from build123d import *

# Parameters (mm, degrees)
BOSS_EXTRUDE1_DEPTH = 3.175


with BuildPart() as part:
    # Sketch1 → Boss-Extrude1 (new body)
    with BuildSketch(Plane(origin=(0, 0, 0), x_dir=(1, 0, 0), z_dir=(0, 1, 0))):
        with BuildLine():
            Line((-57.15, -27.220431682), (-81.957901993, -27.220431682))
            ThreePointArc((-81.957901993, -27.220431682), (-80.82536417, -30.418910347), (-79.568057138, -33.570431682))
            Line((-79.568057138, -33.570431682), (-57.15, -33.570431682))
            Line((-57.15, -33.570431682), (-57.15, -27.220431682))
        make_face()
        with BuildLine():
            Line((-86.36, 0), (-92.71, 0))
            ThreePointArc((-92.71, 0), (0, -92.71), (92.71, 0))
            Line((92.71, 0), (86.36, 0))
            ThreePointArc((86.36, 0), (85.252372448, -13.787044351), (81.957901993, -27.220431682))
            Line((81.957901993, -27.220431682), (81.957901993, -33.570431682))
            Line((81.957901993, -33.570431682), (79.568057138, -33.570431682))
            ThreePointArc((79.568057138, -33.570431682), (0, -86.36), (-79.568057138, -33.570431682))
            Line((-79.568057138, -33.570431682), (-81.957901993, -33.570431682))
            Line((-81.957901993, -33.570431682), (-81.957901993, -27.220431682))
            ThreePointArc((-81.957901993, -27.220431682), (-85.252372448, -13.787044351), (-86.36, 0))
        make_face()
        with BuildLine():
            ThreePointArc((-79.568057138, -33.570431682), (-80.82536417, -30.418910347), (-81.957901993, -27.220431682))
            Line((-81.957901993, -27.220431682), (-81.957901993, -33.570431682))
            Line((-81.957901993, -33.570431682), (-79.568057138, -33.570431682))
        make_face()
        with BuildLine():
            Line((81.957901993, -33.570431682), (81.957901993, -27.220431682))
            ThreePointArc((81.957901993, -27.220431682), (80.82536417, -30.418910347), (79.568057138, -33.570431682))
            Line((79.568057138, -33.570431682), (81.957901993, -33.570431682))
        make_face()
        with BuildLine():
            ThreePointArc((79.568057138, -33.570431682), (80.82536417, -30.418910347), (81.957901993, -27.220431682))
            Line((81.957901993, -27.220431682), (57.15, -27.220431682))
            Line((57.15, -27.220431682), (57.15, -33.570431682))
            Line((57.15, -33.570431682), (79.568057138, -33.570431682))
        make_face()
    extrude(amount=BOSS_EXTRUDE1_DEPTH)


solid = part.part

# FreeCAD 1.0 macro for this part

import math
import FreeCAD as App
import Part
import Sketcher
Q = App.Units.Quantity

doc = App.newDocument("Part")
body = doc.addObject("PartDesign::Body", "Body")

# Sketch on XZ plane
sketch1 = doc.addObject("Sketcher::SketchObject", "Sketch")
body.addObject(sketch1)
sketch1.AttachmentSupport = (doc.XZ_Plane, [""])
sketch1.MapMode = "FlatFace"
sketch1.addGeometry(Part.LineSegment(App.Vector(-57, 27, 0), App.Vector(-82, 27, 0)), False)
sketch1.addGeometry(Part.ArcOfCircle(Part.Circle(App.Vector(0, 0, 0), App.Vector(0, 0, 1), 86), math.radians(161.63), math.radians(180)), False)
sketch1.addGeometry(Part.LineSegment(App.Vector(-86, 0, 0), App.Vector(-93, 0, 0)), False)
sketch1.addGeometry(Part.ArcOfCircle(Part.Circle(App.Vector(0, 0, 0), App.Vector(0, 0, 1), 93), math.radians(0), math.radians(180)), False)
sketch1.addGeometry(Part.LineSegment(App.Vector(93, 0, 0), App.Vector(86, 0, 0)), False)
sketch1.addGeometry(Part.ArcOfCircle(Part.Circle(App.Vector(0, 0, 0), App.Vector(0, 0, 1), 86), math.radians(0), math.radians(18.37)), False)
sketch1.addGeometry(Part.LineSegment(App.Vector(82, 27, 0), App.Vector(57, 27, 0)), False)
sketch1.addGeometry(Part.LineSegment(App.Vector(57, 27, 0), App.Vector(57, 34, 0)), False)
sketch1.addGeometry(Part.LineSegment(App.Vector(57, 34, 0), App.Vector(80, 34, 0)), False)
sketch1.addGeometry(Part.ArcOfCircle(Part.Circle(App.Vector(0, 0, 0), App.Vector(0, 0, 1), 86), math.radians(23), math.radians(157)), False)
sketch1.addGeometry(Part.LineSegment(App.Vector(-80, 34, 0), App.Vector(-57, 34, 0)), False)
sketch1.addGeometry(Part.LineSegment(App.Vector(-57, 34, 0), App.Vector(-57, 27, 0)), False)
sketch1.addConstraint(Sketcher.Constraint("Coincident", 0, 2, 1, 1))
sketch1.addConstraint(Sketcher.Constraint("Coincident", 1, 2, 2, 1))
sketch1.addConstraint(Sketcher.Constraint("Coincident", 2, 2, 3, 2))
sketch1.addConstraint(Sketcher.Constraint("Coincident", 3, 1, 4, 1))
sketch1.addConstraint(Sketcher.Constraint("Coincident", 4, 2, 5, 1))
sketch1.addConstraint(Sketcher.Constraint("Coincident", 5, 2, 6, 1))
sketch1.addConstraint(Sketcher.Constraint("Coincident", 6, 2, 7, 1))
sketch1.addConstraint(Sketcher.Constraint("Coincident", 7, 2, 8, 1))
sketch1.addConstraint(Sketcher.Constraint("Coincident", 8, 2, 9, 1))
sketch1.addConstraint(Sketcher.Constraint("Coincident", 9, 2, 10, 1))
sketch1.addConstraint(Sketcher.Constraint("Coincident", 10, 2, 11, 1))
sketch1.addConstraint(Sketcher.Constraint("Coincident", 11, 2, 0, 1))
sketch1.addConstraint(Sketcher.Constraint("Horizontal", 0))
sketch1.addConstraint(Sketcher.Constraint("Horizontal", 2))
sketch1.addConstraint(Sketcher.Constraint("Horizontal", 4))
sketch1.addConstraint(Sketcher.Constraint("Horizontal", 6))
sketch1.addConstraint(Sketcher.Constraint("Vertical", 7))
sketch1.addConstraint(Sketcher.Constraint("Horizontal", 8))
sketch1.addConstraint(Sketcher.Constraint("Horizontal", 10))
sketch1.addConstraint(Sketcher.Constraint("Vertical", 11))
sketch1.addConstraint(Sketcher.Constraint("Coincident", 1, 3, -1, 1))
sketch1.addConstraint(Sketcher.Constraint("Coincident", 3, 3, -1, 1))
sketch1.addConstraint(Sketcher.Constraint("Coincident", 5, 3, -1, 1))
sketch1.addConstraint(Sketcher.Constraint("Coincident", 9, 3, -1, 1))
sketch1.addConstraint(Sketcher.Constraint("Equal", 1, 5))
sketch1.addConstraint(Sketcher.Constraint("Equal", 5, 9))
sketch1.addConstraint(Sketcher.Constraint("Symmetric", 7, 2, 10, 2, -2))
sketch1.addConstraint(Sketcher.Constraint("PointOnObject", 1, 2, -1))
sketch1.addConstraint(Sketcher.Constraint("PointOnObject", 3, 1, -1))
sketch1.addConstraint(Sketcher.Constraint("Horizontal", 0, 2, 5, 2))
sketch1.addConstraint(Sketcher.Constraint("Equal", 4, 7))
sketch1.addConstraint(Sketcher.Constraint("Radius", 1, Q("3.4 in")))
sketch1.addConstraint(Sketcher.Constraint("Radius", 3, Q("3.65 in")))
sketch1.addConstraint(Sketcher.Constraint("DistanceX", 6, 2, 3, 1, Q("1.4 in")))
sketch1.addConstraint(Sketcher.Constraint("DistanceX", 0, 2, 0, 1, Q("24.807902 mm")))
pad1 = doc.addObject("PartDesign::Pad", "Pad")
body.addObject(pad1)
pad1.Profile = sketch1
pad1.Length = Q("0.125 in")
pad1.Reversed = True

doc.recompute()
